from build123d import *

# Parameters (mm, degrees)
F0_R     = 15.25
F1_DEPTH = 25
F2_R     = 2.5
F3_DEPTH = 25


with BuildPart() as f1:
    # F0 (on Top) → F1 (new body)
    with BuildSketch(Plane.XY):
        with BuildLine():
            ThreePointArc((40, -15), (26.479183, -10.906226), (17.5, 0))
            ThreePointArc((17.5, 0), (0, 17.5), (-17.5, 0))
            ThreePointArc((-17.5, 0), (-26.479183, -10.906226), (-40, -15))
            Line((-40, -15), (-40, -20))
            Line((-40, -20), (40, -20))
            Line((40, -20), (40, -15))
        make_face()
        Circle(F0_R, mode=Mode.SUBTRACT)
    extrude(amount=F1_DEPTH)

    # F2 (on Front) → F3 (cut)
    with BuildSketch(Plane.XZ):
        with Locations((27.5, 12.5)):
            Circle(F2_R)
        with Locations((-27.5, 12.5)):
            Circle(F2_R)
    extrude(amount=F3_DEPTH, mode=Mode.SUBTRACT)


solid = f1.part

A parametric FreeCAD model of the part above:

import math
import FreeCAD as App
import Part
import Sketcher

V = App.Vector

doc = App.newDocument("Part")
body = doc.addObject("PartDesign::Body", "Body")

# Sketch on XY plane
sketch1 = body.newObject("Sketcher::SketchObject", "Sketch")
sketch1.AttachmentSupport = (doc.getObject("XY_Plane"), [""])
sketch1.MapMode = "FlatFace"
sketch1.addGeometry([
    Part.ArcOfCircle(Part.Circle(V(40, 9, 0), V(0, 0, 1), 24), math.radians(-157), math.radians(-90)),  # 0
    Part.ArcOfCircle(Part.Circle(V(0, 0, 0), V(0, 0, 1), 18), math.radians(0), math.radians(180)),  # 1
    Part.ArcOfCircle(Part.Circle(V(-40, 9, 0), V(0, 0, 1), 24), math.radians(-90), math.radians(-23)),  # 2
    Part.LineSegment(V(-40, -15, 0), V(-40, -20, 0)),  # 3
    Part.LineSegment(V(-40, -20, 0), V(40, -20, 0)),  # 4
    Part.LineSegment(V(40, -20, 0), V(40, -15, 0)),  # 5
    Part.Circle(V(0, 0, 0), V(0, 0, 1), 15),  # 6
], False)
sketch1.addConstraint([
    Sketcher.Constraint("Coincident", 0, 1, 1, 1),
    Sketcher.Constraint("Coincident", 1, 2, 2, 2),
    Sketcher.Constraint("Coincident", 2, 1, 3, 1),
    Sketcher.Constraint("Coincident", 3, 2, 4, 1),
    Sketcher.Constraint("Coincident", 4, 2, 5, 1),
    Sketcher.Constraint("Coincident", 5, 2, 0, 2),
    Sketcher.Constraint("Vertical", 3),
    Sketcher.Constraint("Horizontal", 4),
    Sketcher.Constraint("Vertical", 5),
    Sketcher.Constraint("Coincident", 1, 3, -1, 1),
    Sketcher.Constraint("Coincident", 6, 3, -1, 1),
    Sketcher.Constraint("Equal", 0, 2),
    Sketcher.Constraint("Symmetric", 0, 3, 2, 3, -2),
    Sketcher.Constraint("PointOnObject", 0, 1, -1),
    Sketcher.Constraint("Vertical", 0, 3, 4, 2),
    Sketcher.Constraint("Diameter", 6, 30.5),
    Sketcher.Constraint("Radius", 1, 17.5),
    Sketcher.Constraint("DistanceX", 4, 1, 4, 2, 80.0),
    Sketcher.Constraint("DistanceY", 3, 2, 3, 1, 5.0),
    Sketcher.Constraint("DistanceX", -1, 1, 0, 3, 40.0),
    Sketcher.Constraint("DistanceY", 2, 1, -1, 1, 15.0),
])
pad1 = body.newObject("PartDesign::Pad", "Pad")
pad1.Profile = sketch1
pad1.Length = 25

# Sketch on XZ plane
sketch2 = body.newObject("Sketcher::SketchObject", "Sketch001")
sketch2.AttachmentSupport = (doc.getObject("XZ_Plane"), [""])
sketch2.MapMode = "FlatFace"
sketch2.addGeometry([
    Part.Circle(V(27.5, 12.5, 0), V(0, 0, 1), 2.5),
    Part.Circle(V(-27.5, 12.5, 0), V(0, 0, 1), 2.5),
], False)
sketch2.addConstraint([
    Sketcher.Constraint("Equal", 0, 1),
    Sketcher.Constraint("Symmetric", 0, 3, 1, 3, -2),
    Sketcher.Constraint("Diameter", 0, 5.0),
    Sketcher.Constraint("DistanceX", 1, 3, 0, 3, 55.0),
    Sketcher.Constraint("DistanceY", -1, 1, 0, 3, 12.5),
])
pocket1 = body.newObject("PartDesign::Pocket", "Pocket")
pocket1.Profile = sketch2
pocket1.Length = 25
pocket1.Reversed = True

doc.recompute()
